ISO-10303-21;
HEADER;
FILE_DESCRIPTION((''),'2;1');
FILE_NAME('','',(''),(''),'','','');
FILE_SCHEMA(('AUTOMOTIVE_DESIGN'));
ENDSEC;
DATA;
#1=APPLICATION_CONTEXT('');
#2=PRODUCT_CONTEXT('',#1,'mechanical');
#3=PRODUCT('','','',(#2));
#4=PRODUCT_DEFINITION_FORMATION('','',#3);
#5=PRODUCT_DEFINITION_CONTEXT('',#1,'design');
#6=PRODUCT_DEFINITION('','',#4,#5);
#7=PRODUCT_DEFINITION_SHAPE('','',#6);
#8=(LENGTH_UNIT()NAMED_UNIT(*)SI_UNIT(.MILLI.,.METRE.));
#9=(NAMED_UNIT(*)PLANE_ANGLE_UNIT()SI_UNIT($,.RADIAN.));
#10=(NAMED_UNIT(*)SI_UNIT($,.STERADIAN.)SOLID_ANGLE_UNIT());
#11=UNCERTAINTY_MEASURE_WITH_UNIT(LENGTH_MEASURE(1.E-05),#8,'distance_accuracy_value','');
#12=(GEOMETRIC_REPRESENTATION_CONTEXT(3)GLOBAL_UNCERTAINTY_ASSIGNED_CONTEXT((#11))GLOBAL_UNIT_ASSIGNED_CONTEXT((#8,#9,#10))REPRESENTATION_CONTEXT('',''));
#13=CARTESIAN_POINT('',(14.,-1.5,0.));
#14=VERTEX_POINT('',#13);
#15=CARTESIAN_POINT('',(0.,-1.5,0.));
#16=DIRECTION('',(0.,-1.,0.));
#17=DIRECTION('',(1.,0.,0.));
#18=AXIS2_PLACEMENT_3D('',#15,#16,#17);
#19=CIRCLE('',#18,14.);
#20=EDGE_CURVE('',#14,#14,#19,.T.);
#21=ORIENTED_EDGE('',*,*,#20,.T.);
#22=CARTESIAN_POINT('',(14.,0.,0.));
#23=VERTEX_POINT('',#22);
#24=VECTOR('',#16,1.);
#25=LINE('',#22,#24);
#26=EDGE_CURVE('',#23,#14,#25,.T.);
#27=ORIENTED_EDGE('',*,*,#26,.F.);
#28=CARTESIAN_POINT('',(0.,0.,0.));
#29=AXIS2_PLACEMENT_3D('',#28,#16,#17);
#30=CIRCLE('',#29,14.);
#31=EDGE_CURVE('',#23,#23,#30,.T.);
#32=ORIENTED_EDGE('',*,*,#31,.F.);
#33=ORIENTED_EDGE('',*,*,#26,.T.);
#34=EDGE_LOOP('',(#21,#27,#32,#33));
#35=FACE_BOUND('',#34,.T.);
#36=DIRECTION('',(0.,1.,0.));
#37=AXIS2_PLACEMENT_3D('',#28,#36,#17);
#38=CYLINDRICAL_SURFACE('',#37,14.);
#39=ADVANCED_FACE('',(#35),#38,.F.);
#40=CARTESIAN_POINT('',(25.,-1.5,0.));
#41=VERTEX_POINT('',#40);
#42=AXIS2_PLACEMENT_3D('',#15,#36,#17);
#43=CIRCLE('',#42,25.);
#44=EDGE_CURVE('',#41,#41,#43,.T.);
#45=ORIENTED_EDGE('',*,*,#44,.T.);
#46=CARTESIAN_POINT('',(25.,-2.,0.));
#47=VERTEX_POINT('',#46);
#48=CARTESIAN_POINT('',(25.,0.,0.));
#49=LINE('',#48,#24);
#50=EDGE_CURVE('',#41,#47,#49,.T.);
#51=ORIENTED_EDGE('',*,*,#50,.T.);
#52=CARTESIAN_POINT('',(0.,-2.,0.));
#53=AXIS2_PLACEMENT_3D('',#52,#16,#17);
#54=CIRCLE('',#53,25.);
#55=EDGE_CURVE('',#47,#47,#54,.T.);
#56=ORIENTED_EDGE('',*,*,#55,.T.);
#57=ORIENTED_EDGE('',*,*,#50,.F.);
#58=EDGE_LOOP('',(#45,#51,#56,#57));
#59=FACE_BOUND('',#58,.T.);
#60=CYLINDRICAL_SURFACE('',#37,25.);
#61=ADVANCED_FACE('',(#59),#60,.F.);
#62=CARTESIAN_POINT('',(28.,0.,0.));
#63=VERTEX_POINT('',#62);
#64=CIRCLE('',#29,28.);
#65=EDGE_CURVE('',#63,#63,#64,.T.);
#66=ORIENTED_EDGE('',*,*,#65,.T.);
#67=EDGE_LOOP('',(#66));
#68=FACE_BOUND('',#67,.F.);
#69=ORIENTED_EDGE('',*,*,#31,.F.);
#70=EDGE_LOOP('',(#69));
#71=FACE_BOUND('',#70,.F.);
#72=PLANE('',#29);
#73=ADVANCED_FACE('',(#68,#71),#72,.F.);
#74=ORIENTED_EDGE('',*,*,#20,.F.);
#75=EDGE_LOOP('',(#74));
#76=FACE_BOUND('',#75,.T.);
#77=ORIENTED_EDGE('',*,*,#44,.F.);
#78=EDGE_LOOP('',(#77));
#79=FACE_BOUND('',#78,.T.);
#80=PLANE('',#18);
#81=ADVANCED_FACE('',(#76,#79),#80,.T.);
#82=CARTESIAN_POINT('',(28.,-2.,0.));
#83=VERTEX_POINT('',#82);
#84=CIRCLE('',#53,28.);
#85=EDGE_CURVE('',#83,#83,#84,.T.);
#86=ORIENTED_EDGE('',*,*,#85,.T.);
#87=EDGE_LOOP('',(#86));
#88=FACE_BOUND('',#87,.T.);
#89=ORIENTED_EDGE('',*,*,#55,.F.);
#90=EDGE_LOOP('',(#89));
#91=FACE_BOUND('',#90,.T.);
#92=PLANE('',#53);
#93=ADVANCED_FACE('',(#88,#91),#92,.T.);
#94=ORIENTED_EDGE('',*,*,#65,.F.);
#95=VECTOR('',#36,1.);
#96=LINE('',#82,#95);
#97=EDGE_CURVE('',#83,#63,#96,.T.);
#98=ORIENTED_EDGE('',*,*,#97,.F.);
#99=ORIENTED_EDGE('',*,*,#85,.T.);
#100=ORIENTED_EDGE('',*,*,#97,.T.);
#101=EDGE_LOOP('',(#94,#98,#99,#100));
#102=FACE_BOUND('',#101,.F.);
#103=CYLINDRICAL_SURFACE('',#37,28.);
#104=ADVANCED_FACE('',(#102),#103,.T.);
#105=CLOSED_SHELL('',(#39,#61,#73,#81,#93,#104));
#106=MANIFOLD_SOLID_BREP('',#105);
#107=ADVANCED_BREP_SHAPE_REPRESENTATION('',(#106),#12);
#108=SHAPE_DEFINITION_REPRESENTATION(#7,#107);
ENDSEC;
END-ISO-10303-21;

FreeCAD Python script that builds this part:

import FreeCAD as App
import Part
import Sketcher

doc = App.newDocument("Part")
body = doc.addObject("PartDesign::Body", "Body")

sketch1 = body.newObject("Sketcher::SketchObject", "Sketch")
sketch1.AttachmentSupport = (doc.getObject("XZ_Plane"), [""])
sketch1.MapMode = "FlatFace"
sketch1.addGeometry(Part.Circle(App.Vector(0, 0, 0), App.Vector(0, 0, 1), 28), False)
sketch1.addGeometry(Part.Circle(App.Vector(0, 0, 0), App.Vector(0, 0, 1), 14), False)
sketch1.addConstraint(Sketcher.Constraint("Coincident", 0, 3, -1, 1))
sketch1.addConstraint(Sketcher.Constraint("Coincident", 1, 3, -1, 1))
sketch1.addConstraint(Sketcher.Constraint("Diameter", 0, 56.0))
sketch1.addConstraint(Sketcher.Constraint("Diameter", 1, 28.0))
pad1 = body.newObject("PartDesign::Pad", "Pad")
pad1.Profile = sketch1
pad1.Length = 1.5

sketch2 = body.newObject("Sketcher::SketchObject", "Sketch001")
sketch2.AttachmentSupport = (doc.getObject("XZ_Plane"), [""])
sketch2.MapMode = "FlatFace"
sketch2.addGeometry(Part.Circle(App.Vector(0, 0, 0), App.Vector(0, 0, 1), 28), False)
sketch2.addGeometry(Part.Circle(App.Vector(0, 0, 0), App.Vector(0, 0, 1), 25), False)
sketch2.addConstraint(Sketcher.Constraint("Coincident", 0, 3, -1, 1))
sketch2.addConstraint(Sketcher.Constraint("Coincident", 1, 3, -1, 1))
sketch2.addConstraint(Sketcher.Constraint("Diameter", 0, 56.0))
sketch2.addConstraint(Sketcher.Constraint("Diameter", 1, 50.0))
pad2 = body.newObject("PartDesign::Pad", "Pad001")
pad2.Profile = sketch2
pad2.Length = 2

doc.recompute()
